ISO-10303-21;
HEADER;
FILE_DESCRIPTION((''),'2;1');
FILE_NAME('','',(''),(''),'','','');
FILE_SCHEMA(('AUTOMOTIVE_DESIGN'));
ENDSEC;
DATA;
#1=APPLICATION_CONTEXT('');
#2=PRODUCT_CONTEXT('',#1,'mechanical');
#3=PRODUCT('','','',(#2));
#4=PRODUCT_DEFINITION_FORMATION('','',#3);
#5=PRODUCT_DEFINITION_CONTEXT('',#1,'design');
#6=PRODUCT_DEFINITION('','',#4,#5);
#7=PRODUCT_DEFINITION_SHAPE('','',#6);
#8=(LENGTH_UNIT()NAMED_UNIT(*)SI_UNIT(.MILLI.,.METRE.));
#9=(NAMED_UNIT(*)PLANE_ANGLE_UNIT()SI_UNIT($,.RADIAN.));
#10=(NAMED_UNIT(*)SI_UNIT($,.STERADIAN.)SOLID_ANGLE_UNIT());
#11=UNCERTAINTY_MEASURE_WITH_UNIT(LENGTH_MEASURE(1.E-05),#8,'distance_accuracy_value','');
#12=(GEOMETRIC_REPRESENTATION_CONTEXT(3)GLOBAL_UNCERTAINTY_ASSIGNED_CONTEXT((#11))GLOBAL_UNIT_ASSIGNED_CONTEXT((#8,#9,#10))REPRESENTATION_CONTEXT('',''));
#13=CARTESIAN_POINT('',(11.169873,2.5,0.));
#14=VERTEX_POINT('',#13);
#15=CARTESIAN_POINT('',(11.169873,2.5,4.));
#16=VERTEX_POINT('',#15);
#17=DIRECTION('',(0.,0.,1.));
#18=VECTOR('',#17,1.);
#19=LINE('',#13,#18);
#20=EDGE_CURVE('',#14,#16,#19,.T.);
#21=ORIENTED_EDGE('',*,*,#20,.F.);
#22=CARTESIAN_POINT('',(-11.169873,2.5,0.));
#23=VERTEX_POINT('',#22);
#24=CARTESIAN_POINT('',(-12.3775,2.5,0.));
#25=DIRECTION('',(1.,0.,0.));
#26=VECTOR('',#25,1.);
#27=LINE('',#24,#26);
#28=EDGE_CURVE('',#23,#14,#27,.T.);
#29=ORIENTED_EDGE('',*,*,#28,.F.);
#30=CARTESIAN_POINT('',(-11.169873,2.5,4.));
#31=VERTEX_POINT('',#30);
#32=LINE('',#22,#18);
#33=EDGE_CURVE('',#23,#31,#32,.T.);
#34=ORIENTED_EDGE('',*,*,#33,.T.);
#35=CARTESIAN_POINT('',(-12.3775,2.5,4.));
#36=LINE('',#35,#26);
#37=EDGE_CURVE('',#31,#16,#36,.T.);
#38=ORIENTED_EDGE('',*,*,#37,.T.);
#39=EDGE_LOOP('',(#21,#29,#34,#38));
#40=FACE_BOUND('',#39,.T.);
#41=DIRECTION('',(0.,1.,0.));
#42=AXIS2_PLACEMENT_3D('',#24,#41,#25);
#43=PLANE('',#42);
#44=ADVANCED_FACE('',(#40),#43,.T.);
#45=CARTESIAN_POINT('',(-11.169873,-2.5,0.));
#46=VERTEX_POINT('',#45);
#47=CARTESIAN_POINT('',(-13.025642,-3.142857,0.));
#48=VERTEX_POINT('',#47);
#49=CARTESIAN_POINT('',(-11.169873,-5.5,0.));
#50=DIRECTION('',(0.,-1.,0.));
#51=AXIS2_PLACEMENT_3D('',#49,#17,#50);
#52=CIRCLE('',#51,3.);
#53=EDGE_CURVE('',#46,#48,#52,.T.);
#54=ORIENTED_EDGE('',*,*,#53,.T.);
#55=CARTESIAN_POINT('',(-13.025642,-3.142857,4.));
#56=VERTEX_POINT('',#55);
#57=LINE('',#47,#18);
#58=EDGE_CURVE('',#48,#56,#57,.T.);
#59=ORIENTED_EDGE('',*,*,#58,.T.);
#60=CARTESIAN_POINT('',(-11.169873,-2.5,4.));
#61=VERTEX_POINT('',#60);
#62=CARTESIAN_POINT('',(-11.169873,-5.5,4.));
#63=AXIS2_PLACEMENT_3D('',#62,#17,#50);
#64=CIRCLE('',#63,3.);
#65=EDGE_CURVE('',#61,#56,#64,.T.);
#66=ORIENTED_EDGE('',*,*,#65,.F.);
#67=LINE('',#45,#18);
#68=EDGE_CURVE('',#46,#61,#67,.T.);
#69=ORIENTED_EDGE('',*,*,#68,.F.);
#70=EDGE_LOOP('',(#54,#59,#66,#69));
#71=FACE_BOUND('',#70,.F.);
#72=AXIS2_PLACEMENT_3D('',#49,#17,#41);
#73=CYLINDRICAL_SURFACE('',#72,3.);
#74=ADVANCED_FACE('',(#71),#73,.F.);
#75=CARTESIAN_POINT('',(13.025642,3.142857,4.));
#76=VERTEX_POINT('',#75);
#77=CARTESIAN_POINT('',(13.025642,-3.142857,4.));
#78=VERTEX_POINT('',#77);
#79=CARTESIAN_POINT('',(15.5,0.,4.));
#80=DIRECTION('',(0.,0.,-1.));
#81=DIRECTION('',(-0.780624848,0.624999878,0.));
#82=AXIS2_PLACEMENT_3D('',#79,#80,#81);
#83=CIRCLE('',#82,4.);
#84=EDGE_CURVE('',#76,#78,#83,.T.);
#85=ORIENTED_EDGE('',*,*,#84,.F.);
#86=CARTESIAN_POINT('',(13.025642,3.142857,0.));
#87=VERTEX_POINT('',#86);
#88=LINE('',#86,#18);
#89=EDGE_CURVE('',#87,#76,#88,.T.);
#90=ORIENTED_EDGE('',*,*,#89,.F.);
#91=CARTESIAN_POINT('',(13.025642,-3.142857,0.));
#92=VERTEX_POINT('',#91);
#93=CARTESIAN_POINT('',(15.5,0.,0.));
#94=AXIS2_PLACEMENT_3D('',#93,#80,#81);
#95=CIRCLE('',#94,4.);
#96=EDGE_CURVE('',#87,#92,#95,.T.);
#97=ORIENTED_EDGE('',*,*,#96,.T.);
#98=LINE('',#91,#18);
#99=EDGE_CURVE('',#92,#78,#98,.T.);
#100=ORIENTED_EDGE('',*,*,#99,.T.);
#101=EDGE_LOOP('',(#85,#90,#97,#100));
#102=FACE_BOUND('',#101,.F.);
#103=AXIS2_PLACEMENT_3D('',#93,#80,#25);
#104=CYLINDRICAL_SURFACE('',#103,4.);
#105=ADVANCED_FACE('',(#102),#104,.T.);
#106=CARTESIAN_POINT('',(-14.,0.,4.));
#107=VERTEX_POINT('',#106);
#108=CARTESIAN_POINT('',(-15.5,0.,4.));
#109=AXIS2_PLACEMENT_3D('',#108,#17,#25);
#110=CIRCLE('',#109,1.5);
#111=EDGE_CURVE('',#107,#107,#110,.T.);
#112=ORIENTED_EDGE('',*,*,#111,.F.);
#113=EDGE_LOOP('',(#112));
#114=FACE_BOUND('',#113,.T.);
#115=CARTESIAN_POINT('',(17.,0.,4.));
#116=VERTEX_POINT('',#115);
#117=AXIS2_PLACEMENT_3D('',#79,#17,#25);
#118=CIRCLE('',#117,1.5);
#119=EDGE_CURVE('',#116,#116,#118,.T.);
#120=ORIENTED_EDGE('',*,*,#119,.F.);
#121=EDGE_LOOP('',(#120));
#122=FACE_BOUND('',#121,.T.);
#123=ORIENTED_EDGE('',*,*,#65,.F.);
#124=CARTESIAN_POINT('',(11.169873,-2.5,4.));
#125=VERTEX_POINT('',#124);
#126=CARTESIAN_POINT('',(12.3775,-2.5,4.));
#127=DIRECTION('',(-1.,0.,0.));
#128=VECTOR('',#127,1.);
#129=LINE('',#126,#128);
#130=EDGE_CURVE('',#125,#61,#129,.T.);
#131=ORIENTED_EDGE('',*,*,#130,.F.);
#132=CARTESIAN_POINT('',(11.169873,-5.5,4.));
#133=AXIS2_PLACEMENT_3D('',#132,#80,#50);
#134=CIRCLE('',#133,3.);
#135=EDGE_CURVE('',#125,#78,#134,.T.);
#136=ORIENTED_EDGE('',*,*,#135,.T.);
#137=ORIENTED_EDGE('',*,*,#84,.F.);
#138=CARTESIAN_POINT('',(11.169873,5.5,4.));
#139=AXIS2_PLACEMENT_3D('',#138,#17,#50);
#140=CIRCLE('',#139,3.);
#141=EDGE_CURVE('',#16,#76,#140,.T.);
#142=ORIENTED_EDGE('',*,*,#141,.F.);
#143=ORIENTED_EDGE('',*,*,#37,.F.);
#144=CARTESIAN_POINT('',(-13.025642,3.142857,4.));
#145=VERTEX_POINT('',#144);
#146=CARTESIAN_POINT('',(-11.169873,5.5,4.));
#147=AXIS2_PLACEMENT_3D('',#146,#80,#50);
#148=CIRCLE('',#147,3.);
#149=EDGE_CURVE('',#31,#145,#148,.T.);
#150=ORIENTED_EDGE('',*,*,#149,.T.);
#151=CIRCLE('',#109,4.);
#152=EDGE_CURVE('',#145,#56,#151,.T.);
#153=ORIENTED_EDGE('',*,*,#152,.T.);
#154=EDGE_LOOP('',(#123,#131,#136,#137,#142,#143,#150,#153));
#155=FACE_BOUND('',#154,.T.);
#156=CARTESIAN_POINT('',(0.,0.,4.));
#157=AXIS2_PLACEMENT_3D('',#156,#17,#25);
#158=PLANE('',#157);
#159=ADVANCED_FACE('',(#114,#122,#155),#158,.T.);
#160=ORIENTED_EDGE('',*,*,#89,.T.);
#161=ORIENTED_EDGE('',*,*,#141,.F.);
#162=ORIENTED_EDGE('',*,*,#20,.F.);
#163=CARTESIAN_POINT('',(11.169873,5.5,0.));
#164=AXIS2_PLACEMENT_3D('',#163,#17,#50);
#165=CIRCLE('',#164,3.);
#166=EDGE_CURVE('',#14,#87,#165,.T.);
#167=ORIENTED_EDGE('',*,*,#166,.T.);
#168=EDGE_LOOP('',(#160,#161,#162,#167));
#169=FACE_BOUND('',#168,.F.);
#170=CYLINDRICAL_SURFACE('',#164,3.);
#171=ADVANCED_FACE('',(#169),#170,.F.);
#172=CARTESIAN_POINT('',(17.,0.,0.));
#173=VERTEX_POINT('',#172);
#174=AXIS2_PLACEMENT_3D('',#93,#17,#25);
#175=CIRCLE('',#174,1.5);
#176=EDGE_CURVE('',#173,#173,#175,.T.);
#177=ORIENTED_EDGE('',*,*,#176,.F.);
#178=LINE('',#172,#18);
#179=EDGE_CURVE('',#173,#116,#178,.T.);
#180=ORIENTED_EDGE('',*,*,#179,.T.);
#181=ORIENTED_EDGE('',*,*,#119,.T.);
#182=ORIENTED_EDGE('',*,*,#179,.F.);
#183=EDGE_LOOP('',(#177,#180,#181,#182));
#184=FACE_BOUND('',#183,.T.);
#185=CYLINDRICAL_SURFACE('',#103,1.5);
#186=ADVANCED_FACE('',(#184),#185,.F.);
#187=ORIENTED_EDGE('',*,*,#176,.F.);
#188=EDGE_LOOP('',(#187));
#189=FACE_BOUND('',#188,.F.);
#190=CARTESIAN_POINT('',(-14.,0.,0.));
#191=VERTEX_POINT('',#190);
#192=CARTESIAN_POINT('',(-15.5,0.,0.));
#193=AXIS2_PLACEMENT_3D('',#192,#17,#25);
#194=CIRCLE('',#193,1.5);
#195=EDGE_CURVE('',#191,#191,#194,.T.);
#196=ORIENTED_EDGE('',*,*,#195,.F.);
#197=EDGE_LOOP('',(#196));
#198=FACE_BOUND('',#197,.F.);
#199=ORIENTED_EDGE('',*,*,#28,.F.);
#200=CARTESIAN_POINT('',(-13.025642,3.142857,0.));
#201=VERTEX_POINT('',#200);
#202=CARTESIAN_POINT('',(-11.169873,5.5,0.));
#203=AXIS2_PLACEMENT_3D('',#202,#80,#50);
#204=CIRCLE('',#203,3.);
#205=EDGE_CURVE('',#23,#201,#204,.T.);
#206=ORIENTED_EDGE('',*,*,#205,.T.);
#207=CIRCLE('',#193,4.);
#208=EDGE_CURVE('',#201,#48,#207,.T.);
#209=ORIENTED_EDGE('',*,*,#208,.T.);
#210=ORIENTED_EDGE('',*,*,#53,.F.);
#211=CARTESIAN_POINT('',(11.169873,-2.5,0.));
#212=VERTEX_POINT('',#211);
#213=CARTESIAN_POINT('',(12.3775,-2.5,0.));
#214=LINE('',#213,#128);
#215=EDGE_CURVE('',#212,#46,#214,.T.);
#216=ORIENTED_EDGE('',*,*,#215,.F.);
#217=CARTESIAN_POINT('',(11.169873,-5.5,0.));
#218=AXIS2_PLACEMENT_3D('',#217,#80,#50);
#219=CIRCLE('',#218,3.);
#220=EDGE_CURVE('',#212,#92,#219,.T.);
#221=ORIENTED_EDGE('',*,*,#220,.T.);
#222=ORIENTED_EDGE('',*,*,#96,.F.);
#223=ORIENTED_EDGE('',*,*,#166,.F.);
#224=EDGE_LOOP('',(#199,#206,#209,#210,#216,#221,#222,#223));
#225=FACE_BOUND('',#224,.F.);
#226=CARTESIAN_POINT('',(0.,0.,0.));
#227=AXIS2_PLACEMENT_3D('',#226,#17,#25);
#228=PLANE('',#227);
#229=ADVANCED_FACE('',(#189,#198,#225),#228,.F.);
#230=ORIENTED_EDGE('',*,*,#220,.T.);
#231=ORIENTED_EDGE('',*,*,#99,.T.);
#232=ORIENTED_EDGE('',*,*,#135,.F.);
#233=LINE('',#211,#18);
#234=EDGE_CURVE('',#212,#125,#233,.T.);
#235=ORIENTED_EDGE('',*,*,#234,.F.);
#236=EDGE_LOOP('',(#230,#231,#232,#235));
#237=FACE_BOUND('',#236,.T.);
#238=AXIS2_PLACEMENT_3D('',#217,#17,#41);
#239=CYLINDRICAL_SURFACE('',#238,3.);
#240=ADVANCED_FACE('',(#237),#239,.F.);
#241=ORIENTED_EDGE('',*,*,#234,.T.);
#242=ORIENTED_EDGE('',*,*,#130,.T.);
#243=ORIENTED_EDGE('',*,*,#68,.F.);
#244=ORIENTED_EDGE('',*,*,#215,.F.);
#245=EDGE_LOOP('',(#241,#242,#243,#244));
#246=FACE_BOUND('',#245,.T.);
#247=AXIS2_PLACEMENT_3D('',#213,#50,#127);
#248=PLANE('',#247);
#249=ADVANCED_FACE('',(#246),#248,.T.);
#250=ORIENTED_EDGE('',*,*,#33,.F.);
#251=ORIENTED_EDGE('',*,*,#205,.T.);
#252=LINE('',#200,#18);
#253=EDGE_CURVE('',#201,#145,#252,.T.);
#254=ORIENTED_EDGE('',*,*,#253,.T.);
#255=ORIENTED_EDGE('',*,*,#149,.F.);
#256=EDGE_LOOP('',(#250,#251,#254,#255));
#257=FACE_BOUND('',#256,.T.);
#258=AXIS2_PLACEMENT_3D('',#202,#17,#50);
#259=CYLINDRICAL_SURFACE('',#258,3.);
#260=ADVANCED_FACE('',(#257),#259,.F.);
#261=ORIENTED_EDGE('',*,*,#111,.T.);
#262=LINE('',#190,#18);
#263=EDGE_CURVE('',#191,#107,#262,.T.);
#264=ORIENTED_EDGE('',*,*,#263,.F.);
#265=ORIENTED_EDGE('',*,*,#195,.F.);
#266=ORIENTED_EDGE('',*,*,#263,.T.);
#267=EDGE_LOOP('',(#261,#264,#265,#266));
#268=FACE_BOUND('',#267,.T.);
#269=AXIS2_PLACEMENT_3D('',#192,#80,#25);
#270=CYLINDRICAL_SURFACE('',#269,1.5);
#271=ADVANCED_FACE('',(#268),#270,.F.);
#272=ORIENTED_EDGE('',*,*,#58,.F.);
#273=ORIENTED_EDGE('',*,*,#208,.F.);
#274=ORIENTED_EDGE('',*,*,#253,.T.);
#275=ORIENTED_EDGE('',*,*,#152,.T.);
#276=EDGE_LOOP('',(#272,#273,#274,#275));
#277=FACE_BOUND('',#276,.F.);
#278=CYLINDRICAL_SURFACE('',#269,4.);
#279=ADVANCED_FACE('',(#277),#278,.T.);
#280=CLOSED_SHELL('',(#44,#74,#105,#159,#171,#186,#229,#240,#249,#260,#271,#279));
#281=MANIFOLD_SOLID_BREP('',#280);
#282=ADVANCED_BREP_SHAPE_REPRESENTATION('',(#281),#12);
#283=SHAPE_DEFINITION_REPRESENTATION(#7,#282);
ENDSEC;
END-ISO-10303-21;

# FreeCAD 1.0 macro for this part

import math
import FreeCAD as App
import Part
import Sketcher
Q = App.Units.Quantity


def edges_at(feature, points):
    """Names of the edges that pass closest to the given points."""
    edges = feature.Shape.Edges
    near = lambda p: min(range(len(edges)), key=lambda i: edges[i].distToShape(Part.Vertex(*p))[0])
    return sorted({f"Edge{near(p) + 1}" for p in points})

doc = App.newDocument("Part")
params = doc.addObject("Spreadsheet::Sheet", "Params")
for row, (alias, value) in enumerate([
    ("sketch1_diameter", "3 mm"),
    ("sketch1_radius", "4 mm"),
    ("pad1_length", "4 mm"),
    ("fillet_radius", "3 mm"),
], start=1):
    params.set(f"A{row}", alias)
    params.set(f"B{row}", "=" + value)
    params.setAlias(f"B{row}", alias)

body = doc.addObject("PartDesign::Body", "Body")

# Sketch on XY plane
sketch1 = body.newObject("Sketcher::SketchObject", "Sketch")
sketch1.AttachmentSupport = (doc.getObject("XY_Plane"), [""])
sketch1.MapMode = "FlatFace"
sketch1.addGeometry([
    Part.LineSegment(App.Vector(-12.4, -2.5, 0), App.Vector(12.4, -2.5, 0)),  # 0
    Part.ArcOfCircle(Part.Circle(App.Vector(15.5, 0, 0), App.Vector(0, 0, 1), 4), math.radians(-141), math.radians(141)),  # 1
    Part.LineSegment(App.Vector(12.4, 2.5, 0), App.Vector(-12.4, 2.5, 0)),  # 2
    Part.ArcOfCircle(Part.Circle(App.Vector(-15.5, 0, 0), App.Vector(0, 0, 1), 4), math.radians(39), math.radians(321)),  # 3
    Part.Circle(App.Vector(-15.5, 0, 0), App.Vector(0, 0, 1), 1.5),  # 4
    Part.Circle(App.Vector(15.5, 0, 0), App.Vector(0, 0, 1), 1.5),  # 5
], False)
sketch1.addConstraint([
    Sketcher.Constraint("Coincident", 0, 2, 1, 1),
    Sketcher.Constraint("Coincident", 1, 2, 2, 1),
    Sketcher.Constraint("Coincident", 2, 2, 3, 1),
    Sketcher.Constraint("Coincident", 3, 2, 0, 1),
    Sketcher.Constraint("Horizontal", 0),
    Sketcher.Constraint("Horizontal", 2),
    Sketcher.Constraint("Coincident", 4, 3, 3, 3),
    Sketcher.Constraint("Coincident", 5, 3, 1, 3),
    Sketcher.Constraint("Equal", 1, 3),
    Sketcher.Constraint("Equal", 4, 5),
    Sketcher.Constraint("Symmetric", 1, 3, 3, 3, -1, 1),
    Sketcher.Constraint("Symmetric", 0, 2, 1, 2, -1),
    Sketcher.Constraint("Diameter", 4, Q("3 mm")),
    Sketcher.Constraint("Radius", 1, Q("4 mm")),
    Sketcher.Constraint("DistanceX", 3, 3, 1, 3, Q("31 mm")),
    Sketcher.Constraint("DistanceY", 0, 2, 1, 2, Q("5 mm")),
])
sketch1.setExpression("Constraints[12]", "Params.sketch1_diameter")
sketch1.setExpression("Constraints[13]", "Params.sketch1_radius")
pad1 = body.newObject("PartDesign::Pad", "Pad")
pad1.Profile = sketch1
pad1.setExpression("Length", "Params.pad1_length")
doc.recompute()

fillet = body.newObject("PartDesign::Fillet", "Fillet")
fillet.Base = (pad1, edges_at(pad1, [
    (-12.377, -2.5, 2),
    (12.377, -2.5, 2),
    (12.377, 2.5, 2),
    (-12.377, 2.5, 2),
]))
fillet.setExpression("Radius", "Params.fillet_radius")

doc.recompute()
